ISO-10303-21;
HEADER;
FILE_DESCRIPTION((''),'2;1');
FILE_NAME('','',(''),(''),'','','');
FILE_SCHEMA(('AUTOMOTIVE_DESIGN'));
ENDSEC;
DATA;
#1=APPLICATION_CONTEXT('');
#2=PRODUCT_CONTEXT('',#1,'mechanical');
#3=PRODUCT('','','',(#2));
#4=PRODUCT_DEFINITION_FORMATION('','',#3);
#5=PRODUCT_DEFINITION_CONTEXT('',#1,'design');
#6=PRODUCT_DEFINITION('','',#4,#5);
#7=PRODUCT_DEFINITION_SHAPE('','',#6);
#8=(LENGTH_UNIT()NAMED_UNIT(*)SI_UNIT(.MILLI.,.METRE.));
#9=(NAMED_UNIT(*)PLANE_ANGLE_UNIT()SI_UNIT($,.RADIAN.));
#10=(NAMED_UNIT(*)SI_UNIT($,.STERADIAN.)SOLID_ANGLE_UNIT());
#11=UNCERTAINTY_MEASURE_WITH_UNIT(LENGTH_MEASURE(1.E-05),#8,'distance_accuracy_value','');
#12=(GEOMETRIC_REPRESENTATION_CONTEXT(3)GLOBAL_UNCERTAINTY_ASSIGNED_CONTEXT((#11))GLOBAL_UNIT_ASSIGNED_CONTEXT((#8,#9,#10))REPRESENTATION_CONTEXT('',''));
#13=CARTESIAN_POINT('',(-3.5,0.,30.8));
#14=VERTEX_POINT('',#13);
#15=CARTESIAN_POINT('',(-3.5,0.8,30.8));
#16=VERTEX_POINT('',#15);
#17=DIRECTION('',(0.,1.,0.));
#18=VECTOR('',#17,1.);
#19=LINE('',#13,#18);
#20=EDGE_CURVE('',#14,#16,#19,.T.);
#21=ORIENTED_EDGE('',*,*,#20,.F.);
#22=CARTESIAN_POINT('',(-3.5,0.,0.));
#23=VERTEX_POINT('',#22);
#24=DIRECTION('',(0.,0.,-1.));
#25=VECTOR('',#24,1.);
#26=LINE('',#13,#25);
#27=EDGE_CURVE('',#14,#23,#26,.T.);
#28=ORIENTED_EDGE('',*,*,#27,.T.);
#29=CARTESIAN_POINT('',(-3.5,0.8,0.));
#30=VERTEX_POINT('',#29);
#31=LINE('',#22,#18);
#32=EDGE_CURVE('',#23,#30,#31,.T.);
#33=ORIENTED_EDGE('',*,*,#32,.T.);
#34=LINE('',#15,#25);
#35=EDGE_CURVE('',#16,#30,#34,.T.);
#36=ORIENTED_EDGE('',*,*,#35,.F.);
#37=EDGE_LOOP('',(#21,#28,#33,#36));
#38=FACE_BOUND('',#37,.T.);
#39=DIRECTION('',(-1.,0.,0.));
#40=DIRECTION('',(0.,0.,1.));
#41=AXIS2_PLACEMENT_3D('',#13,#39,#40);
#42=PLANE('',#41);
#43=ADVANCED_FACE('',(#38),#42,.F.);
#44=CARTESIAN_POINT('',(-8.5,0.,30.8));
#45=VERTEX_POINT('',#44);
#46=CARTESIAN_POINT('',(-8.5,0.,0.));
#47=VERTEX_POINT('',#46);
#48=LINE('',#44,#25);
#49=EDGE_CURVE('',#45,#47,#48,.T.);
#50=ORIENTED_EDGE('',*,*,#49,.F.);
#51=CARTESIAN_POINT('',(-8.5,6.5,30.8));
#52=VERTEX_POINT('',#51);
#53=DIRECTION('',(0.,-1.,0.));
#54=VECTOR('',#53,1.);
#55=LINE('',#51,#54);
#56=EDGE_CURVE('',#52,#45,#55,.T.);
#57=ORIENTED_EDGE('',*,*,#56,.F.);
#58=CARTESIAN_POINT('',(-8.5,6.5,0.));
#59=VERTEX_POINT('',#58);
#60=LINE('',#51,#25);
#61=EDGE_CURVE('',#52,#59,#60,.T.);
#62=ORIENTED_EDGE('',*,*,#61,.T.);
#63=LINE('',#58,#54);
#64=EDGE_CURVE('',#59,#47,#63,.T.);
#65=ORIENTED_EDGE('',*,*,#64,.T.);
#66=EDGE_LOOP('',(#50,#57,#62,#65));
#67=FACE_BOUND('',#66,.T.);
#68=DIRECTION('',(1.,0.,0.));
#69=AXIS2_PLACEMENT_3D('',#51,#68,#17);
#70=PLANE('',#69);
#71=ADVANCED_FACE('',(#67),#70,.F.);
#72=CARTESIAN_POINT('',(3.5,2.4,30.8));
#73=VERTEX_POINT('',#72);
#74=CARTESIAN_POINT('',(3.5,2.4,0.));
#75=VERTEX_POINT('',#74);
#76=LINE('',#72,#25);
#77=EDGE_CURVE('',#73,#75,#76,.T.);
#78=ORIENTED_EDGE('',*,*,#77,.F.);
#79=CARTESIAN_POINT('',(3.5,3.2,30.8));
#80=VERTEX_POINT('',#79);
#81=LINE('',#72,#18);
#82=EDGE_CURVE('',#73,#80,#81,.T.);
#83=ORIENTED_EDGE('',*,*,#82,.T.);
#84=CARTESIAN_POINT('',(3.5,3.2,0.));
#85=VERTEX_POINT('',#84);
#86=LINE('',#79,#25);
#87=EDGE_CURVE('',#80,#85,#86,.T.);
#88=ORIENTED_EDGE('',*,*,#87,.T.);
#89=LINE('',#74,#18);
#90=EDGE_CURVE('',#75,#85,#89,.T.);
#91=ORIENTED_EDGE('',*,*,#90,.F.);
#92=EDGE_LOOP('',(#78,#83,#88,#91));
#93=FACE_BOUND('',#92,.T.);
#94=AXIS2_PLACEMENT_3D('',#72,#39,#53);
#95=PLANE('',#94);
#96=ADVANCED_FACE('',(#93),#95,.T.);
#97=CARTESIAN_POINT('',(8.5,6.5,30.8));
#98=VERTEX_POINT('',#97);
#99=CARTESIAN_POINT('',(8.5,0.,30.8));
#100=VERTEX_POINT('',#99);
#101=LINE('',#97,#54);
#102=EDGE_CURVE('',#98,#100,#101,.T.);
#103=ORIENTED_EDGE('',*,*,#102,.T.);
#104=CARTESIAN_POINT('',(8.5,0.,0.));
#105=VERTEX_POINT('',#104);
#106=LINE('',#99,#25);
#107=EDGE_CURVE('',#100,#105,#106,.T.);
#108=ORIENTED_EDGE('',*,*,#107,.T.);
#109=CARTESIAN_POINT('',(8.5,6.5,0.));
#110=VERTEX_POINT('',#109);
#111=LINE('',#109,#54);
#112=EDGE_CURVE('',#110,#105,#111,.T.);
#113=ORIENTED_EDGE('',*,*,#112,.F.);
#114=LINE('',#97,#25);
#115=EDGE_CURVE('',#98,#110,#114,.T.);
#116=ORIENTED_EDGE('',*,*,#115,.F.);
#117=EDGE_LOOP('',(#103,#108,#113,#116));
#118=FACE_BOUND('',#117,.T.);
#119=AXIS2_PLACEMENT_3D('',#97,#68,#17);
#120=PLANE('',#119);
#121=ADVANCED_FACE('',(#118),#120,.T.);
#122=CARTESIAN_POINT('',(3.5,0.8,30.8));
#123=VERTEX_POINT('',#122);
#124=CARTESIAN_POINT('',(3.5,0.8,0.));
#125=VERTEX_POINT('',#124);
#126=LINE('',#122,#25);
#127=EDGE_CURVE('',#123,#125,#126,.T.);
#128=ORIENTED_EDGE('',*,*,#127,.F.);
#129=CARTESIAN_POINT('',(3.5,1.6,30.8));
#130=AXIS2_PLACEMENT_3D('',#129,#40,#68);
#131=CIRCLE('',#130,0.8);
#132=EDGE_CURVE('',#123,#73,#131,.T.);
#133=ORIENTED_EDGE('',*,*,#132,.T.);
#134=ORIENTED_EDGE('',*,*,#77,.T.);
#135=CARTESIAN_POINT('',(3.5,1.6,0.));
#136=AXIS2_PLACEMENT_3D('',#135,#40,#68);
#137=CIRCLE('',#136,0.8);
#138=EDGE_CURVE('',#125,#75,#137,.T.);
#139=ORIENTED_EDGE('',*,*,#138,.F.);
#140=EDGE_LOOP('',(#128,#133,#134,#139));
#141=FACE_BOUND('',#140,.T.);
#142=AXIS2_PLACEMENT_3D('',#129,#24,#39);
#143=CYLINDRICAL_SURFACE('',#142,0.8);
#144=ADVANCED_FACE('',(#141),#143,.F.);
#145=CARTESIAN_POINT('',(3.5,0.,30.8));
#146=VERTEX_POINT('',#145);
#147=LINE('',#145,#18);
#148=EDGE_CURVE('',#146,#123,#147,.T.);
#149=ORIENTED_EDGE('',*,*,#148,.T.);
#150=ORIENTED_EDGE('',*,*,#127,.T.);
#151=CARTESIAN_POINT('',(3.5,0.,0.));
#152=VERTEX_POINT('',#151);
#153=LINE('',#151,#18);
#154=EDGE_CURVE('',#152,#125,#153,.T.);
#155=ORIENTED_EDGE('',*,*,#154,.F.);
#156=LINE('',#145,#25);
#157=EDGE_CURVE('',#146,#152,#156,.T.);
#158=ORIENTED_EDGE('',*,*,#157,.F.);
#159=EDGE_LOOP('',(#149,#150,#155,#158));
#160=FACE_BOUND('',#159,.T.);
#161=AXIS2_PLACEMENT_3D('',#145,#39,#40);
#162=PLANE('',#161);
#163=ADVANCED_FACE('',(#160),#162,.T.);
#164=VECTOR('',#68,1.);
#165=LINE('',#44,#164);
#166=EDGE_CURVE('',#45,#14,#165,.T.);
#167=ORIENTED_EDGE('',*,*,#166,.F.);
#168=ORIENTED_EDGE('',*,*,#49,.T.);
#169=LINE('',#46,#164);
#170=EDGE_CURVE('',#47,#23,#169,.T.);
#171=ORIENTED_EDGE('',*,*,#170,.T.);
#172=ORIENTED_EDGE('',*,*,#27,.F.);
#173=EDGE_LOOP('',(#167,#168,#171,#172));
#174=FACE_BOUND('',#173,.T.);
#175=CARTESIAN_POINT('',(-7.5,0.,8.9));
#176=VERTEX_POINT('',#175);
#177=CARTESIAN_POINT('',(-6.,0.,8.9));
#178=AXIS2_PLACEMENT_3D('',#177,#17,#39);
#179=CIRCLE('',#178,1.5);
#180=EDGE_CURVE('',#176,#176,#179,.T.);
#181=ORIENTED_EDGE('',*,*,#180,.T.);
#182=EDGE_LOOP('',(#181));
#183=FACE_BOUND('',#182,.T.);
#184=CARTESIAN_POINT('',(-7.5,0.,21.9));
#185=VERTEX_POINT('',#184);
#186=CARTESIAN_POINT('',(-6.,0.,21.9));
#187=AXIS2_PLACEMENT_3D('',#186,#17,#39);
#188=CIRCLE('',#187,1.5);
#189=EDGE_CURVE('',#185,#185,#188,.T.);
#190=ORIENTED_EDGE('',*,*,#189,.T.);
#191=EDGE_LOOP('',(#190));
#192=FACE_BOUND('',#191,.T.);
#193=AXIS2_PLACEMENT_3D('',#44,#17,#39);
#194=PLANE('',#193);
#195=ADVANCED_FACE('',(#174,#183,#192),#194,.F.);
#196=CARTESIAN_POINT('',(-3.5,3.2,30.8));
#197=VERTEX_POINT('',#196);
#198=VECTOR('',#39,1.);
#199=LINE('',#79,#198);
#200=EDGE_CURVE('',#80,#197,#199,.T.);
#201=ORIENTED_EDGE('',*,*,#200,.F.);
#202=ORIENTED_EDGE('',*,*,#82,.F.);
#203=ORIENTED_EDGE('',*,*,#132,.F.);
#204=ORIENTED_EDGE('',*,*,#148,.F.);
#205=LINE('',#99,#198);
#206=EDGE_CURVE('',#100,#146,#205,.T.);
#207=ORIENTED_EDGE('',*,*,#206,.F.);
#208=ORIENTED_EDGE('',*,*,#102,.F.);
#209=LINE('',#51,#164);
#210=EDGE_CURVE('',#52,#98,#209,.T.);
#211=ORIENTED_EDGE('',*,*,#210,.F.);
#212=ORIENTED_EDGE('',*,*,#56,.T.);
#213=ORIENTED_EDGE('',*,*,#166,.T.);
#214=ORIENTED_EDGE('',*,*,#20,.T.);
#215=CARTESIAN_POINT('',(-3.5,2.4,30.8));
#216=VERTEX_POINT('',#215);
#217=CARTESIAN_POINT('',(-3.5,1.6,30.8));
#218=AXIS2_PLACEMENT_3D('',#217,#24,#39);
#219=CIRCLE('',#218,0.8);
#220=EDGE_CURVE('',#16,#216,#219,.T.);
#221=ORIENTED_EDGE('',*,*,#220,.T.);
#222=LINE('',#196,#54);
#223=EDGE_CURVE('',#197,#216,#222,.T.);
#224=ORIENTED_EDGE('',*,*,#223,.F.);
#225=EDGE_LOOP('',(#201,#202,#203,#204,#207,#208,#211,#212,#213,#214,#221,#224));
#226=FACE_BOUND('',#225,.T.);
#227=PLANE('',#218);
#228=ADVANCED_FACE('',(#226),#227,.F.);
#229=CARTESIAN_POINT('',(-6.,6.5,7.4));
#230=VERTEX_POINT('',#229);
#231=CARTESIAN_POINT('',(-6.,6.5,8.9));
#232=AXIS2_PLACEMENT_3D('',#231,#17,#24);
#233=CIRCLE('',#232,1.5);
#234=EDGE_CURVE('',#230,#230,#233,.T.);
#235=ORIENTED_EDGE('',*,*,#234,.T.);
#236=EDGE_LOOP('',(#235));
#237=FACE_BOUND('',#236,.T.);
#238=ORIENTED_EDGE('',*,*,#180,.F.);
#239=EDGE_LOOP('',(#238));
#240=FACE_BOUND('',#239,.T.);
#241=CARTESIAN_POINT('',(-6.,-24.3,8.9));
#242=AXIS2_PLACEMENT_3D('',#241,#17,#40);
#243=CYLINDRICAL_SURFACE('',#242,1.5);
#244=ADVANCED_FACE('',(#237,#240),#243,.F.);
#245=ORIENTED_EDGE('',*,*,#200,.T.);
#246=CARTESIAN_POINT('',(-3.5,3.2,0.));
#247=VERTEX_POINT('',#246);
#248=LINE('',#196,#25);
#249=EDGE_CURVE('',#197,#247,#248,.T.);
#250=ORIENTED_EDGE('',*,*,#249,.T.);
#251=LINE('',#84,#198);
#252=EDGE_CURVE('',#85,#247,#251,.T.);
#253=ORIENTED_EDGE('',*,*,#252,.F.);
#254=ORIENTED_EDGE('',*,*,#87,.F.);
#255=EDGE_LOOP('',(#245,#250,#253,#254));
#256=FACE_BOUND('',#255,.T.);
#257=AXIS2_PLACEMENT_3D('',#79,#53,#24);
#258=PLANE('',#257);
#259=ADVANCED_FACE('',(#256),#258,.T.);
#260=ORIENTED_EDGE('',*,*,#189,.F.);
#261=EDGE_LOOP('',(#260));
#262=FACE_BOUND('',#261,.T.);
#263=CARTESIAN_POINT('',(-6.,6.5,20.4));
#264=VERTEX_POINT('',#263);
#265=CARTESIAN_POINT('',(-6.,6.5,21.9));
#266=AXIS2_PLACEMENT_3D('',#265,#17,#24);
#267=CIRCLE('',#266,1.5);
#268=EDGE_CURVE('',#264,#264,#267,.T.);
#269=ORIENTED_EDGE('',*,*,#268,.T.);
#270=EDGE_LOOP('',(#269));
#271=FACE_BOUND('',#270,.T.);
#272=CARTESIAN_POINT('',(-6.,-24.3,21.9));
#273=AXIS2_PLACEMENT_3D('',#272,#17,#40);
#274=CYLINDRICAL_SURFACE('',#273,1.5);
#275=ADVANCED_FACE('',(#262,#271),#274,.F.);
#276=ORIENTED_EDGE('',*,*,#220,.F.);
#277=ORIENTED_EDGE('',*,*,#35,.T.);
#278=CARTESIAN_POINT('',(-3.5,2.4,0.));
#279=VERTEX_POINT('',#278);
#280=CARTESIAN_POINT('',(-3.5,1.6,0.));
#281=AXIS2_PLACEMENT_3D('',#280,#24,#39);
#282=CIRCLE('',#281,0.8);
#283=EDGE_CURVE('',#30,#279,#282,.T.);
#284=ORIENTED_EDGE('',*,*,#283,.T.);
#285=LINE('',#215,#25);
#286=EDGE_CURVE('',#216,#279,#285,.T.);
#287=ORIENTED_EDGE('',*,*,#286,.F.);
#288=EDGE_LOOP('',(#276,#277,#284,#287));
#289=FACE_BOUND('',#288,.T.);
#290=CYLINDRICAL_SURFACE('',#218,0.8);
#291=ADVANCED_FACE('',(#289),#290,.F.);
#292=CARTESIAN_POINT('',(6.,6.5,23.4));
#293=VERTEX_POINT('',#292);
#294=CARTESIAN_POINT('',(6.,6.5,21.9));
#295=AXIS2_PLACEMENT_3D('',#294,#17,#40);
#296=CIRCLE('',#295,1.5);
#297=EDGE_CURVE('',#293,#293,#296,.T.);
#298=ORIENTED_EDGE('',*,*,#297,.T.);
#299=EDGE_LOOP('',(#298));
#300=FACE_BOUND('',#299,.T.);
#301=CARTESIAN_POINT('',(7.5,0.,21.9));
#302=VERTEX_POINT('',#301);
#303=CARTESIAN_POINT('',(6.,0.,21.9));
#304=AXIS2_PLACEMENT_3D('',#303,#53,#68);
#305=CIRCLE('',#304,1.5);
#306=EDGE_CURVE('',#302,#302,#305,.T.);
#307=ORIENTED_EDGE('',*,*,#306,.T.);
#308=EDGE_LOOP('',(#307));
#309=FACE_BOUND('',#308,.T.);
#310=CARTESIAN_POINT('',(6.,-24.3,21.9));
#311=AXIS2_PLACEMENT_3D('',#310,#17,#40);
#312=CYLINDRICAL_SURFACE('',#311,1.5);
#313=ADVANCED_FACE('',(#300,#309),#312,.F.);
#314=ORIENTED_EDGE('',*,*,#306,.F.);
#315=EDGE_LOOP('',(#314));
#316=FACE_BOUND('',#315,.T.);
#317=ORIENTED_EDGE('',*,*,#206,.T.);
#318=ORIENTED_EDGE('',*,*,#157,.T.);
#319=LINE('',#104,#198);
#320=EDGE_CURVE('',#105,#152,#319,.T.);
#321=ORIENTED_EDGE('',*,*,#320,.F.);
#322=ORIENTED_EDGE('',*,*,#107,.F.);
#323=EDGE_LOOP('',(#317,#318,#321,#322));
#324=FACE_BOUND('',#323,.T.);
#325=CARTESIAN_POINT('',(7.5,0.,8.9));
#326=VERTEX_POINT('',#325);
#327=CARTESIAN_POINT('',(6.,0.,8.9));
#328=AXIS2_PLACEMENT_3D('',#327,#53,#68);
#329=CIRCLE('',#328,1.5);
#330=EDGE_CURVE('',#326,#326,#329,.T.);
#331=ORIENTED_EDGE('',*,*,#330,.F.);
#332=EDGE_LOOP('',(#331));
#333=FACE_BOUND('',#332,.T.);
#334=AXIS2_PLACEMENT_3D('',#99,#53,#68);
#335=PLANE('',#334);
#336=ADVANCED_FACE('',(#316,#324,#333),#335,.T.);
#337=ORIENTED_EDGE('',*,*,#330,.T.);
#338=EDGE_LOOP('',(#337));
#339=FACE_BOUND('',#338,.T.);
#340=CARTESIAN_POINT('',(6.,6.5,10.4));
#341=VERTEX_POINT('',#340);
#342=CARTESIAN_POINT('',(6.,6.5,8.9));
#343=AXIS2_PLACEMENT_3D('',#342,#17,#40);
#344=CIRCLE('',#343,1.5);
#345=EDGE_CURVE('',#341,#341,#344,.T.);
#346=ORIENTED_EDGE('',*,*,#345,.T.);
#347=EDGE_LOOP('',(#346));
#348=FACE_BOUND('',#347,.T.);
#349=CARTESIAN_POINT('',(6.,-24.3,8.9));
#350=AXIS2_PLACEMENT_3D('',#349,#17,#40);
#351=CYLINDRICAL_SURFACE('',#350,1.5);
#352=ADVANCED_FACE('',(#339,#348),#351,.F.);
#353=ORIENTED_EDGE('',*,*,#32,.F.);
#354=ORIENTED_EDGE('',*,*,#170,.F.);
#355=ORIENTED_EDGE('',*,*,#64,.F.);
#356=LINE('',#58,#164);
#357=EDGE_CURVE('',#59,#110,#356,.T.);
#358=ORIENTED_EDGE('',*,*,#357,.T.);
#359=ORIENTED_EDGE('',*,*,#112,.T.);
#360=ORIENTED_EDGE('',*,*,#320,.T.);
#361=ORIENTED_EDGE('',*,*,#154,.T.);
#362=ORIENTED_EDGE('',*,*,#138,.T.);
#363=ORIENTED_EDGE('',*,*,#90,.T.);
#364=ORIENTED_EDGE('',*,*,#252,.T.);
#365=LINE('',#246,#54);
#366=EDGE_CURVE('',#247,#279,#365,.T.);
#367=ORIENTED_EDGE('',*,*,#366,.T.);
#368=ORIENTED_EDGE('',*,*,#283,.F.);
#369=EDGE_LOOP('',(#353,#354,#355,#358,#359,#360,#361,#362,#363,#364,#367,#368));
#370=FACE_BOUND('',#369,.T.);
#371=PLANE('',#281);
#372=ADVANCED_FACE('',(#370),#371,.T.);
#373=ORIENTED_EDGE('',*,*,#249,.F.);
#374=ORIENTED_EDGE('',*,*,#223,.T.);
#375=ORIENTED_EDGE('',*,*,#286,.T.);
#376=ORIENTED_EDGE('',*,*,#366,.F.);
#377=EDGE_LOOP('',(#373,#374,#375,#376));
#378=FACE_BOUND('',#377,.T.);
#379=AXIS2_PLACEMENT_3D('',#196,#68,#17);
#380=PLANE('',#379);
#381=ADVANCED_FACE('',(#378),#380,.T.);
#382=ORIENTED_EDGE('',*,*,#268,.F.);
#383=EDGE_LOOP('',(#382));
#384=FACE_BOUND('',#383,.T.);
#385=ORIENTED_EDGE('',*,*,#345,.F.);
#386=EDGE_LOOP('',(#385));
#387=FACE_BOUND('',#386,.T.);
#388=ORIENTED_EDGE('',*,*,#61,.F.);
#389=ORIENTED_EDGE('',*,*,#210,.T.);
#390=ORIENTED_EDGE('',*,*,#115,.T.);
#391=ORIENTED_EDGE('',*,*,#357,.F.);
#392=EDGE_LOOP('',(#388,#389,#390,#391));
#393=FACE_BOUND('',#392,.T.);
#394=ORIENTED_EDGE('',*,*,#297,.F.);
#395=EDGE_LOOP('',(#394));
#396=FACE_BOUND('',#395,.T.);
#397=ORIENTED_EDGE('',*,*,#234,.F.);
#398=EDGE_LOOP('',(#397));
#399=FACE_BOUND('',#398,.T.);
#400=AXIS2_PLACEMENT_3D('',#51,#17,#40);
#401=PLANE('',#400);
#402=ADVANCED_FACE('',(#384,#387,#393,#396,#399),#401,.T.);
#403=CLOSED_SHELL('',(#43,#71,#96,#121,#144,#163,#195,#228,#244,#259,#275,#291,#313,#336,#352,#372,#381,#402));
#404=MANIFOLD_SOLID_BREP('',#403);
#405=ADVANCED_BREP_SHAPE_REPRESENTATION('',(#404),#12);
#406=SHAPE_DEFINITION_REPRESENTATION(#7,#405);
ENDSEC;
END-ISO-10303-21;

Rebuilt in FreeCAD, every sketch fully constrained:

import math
import FreeCAD as App
import Part
import Sketcher

V = App.Vector

doc = App.newDocument("Part")
params = doc.addObject("Spreadsheet::Sheet", "Params")
for row, (alias, value) in enumerate([
    ("sketch1_radius", "0.8 mm"),
    ("sketch1_width", "17 mm"),
    ("sketch1_width2", "5 mm"),
    ("sketch1_height", "6.5 mm"),
    ("sketch1_height2", "0.8 mm"),
    ("pad1_length", "30.8 mm"),
    ("sketch2_diameter", "3 mm"),
    ("pocket1_length", "30.8 mm"),
], start=1):
    params.set(f"A{row}", alias)
    params.set(f"B{row}", "=" + value)
    params.setAlias(f"B{row}", alias)

body = doc.addObject("PartDesign::Body", "Body")

# Sketch on XY plane
sketch1 = body.newObject("Sketcher::SketchObject", "Sketch")
sketch1.AttachmentSupport = (doc.getObject("XY_Plane"), [""])
sketch1.MapMode = "FlatFace"
sketch1.addGeometry([
    Part.LineSegment(V(8.5, 6.5, 0), V(-8.5, 6.5, 0)),  # 0
    Part.LineSegment(V(-8.5, 6.5, 0), V(-8.5, 0, 0)),  # 1
    Part.LineSegment(V(-8.5, 0, 0), V(-3.5, 0, 0)),  # 2
    Part.LineSegment(V(-3.5, 0, 0), V(-3.5, 0.8, 0)),  # 3
    Part.ArcOfCircle(Part.Circle(V(-3.5, 1.6, 0), V(0, 0, 1), 0.8), math.radians(90), math.radians(270)),  # 4
    Part.LineSegment(V(-3.5, 2.4, 0), V(-3.5, 3.2, 0)),  # 5
    Part.LineSegment(V(-3.5, 3.2, 0), V(3.5, 3.2, 0)),  # 6
    Part.LineSegment(V(3.5, 3.2, 0), V(3.5, 2.4, 0)),  # 7
    Part.ArcOfCircle(Part.Circle(V(3.5, 1.6, 0), V(0, 0, 1), 0.8), math.radians(-90), math.radians(90)),  # 8
    Part.LineSegment(V(3.5, 0.8, 0), V(3.5, 0, 0)),  # 9
    Part.LineSegment(V(3.5, 0, 0), V(8.5, 0, 0)),  # 10
    Part.LineSegment(V(8.5, 0, 0), V(8.5, 6.5, 0)),  # 11
], False)
sketch1.addConstraint([
    Sketcher.Constraint("Coincident", 0, 2, 1, 1),
    Sketcher.Constraint("Coincident", 1, 2, 2, 1),
    Sketcher.Constraint("Coincident", 2, 2, 3, 1),
    Sketcher.Constraint("Coincident", 3, 2, 4, 2),
    Sketcher.Constraint("Coincident", 4, 1, 5, 1),
    Sketcher.Constraint("Coincident", 5, 2, 6, 1),
    Sketcher.Constraint("Coincident", 6, 2, 7, 1),
    Sketcher.Constraint("Coincident", 7, 2, 8, 2),
    Sketcher.Constraint("Coincident", 8, 1, 9, 1),
    Sketcher.Constraint("Coincident", 9, 2, 10, 1),
    Sketcher.Constraint("Coincident", 10, 2, 11, 1),
    Sketcher.Constraint("Coincident", 11, 2, 0, 1),
    Sketcher.Constraint("Horizontal", 0),
    Sketcher.Constraint("Vertical", 1),
    Sketcher.Constraint("Horizontal", 2),
    Sketcher.Constraint("Vertical", 3),
    Sketcher.Constraint("Vertical", 5),
    Sketcher.Constraint("Horizontal", 6),
    Sketcher.Constraint("Vertical", 7),
    Sketcher.Constraint("Vertical", 9),
    Sketcher.Constraint("Horizontal", 10),
    Sketcher.Constraint("Vertical", 11),
    Sketcher.Constraint("Equal", 4, 8),
    Sketcher.Constraint("Symmetric", 2, 2, 9, 2, -1, 1),
    Sketcher.Constraint("Symmetric", 4, 3, 8, 3, -2),
    Sketcher.Constraint("Symmetric", 1, 2, 10, 2, -2),
    Sketcher.Constraint("Vertical", 4, 3, 2, 2),
    Sketcher.Constraint("Vertical", 3, 2, 4, 1),
    Sketcher.Constraint("Vertical", 8, 3, 6, 2),
    Sketcher.Constraint("Equal", 3, 5),
    Sketcher.Constraint("Radius", 4, 0.8),
    Sketcher.Constraint("DistanceX", 0, 2, 0, 1, 17.0),
    Sketcher.Constraint("DistanceX", 2, 1, 2, 2, 5.0),
    Sketcher.Constraint("DistanceY", 1, 2, 1, 1, 6.5),
    Sketcher.Constraint("DistanceY", 3, 1, 3, 2, 0.8),
])
sketch1.setExpression("Constraints[30]", "Params.sketch1_radius")
sketch1.setExpression("Constraints[31]", "Params.sketch1_width")
sketch1.setExpression("Constraints[32]", "Params.sketch1_width2")
sketch1.setExpression("Constraints[33]", "Params.sketch1_height")
sketch1.setExpression("Constraints[34]", "Params.sketch1_height2")
pad1 = body.newObject("PartDesign::Pad", "Pad")
pad1.Profile = sketch1
pad1.setExpression("Length", "Params.pad1_length")

# Sketch on XZ plane
sketch2 = body.newObject("Sketcher::SketchObject", "Sketch001")
sketch2.AttachmentSupport = (doc.getObject("XZ_Plane"), [""])
sketch2.MapMode = "FlatFace"
sketch2.AttachmentOffset = App.Placement(V(0, 0, -6.5), App.Rotation())
sketch2.addGeometry([
    Part.Circle(V(6, 21.9, 0), V(0, 0, 1), 1.5),
    Part.Circle(V(6, 8.9, 0), V(0, 0, 1), 1.5),
    Part.Circle(V(-6, 21.9, 0), V(0, 0, 1), 1.5),
    Part.Circle(V(-6, 8.9, 0), V(0, 0, 1), 1.5),
], False)
sketch2.addConstraint([
    Sketcher.Constraint("Equal", 0, 1),
    Sketcher.Constraint("Equal", 1, 2),
    Sketcher.Constraint("Equal", 2, 3),
    Sketcher.Constraint("Symmetric", 0, 3, 2, 3, -2),
    Sketcher.Constraint("Symmetric", 1, 3, 3, 3, -2),
    Sketcher.Constraint("Vertical", 0, 3, 1, 3),
    Sketcher.Constraint("Diameter", 0, 3.0),
    Sketcher.Constraint("DistanceX", -1, 1, 0, 3, 6.0),
    Sketcher.Constraint("DistanceY", 1, 3, 0, 3, 13.0),
    Sketcher.Constraint("DistanceY", -1, 1, 0, 3, 21.9),
])
sketch2.setExpression("Constraints[6]", "Params.sketch2_diameter")
pocket1 = body.newObject("PartDesign::Pocket", "Pocket")
pocket1.Profile = sketch2
pocket1.setExpression("Length", "Params.pocket1_length")
pocket1.Reversed = True

doc.recompute()
